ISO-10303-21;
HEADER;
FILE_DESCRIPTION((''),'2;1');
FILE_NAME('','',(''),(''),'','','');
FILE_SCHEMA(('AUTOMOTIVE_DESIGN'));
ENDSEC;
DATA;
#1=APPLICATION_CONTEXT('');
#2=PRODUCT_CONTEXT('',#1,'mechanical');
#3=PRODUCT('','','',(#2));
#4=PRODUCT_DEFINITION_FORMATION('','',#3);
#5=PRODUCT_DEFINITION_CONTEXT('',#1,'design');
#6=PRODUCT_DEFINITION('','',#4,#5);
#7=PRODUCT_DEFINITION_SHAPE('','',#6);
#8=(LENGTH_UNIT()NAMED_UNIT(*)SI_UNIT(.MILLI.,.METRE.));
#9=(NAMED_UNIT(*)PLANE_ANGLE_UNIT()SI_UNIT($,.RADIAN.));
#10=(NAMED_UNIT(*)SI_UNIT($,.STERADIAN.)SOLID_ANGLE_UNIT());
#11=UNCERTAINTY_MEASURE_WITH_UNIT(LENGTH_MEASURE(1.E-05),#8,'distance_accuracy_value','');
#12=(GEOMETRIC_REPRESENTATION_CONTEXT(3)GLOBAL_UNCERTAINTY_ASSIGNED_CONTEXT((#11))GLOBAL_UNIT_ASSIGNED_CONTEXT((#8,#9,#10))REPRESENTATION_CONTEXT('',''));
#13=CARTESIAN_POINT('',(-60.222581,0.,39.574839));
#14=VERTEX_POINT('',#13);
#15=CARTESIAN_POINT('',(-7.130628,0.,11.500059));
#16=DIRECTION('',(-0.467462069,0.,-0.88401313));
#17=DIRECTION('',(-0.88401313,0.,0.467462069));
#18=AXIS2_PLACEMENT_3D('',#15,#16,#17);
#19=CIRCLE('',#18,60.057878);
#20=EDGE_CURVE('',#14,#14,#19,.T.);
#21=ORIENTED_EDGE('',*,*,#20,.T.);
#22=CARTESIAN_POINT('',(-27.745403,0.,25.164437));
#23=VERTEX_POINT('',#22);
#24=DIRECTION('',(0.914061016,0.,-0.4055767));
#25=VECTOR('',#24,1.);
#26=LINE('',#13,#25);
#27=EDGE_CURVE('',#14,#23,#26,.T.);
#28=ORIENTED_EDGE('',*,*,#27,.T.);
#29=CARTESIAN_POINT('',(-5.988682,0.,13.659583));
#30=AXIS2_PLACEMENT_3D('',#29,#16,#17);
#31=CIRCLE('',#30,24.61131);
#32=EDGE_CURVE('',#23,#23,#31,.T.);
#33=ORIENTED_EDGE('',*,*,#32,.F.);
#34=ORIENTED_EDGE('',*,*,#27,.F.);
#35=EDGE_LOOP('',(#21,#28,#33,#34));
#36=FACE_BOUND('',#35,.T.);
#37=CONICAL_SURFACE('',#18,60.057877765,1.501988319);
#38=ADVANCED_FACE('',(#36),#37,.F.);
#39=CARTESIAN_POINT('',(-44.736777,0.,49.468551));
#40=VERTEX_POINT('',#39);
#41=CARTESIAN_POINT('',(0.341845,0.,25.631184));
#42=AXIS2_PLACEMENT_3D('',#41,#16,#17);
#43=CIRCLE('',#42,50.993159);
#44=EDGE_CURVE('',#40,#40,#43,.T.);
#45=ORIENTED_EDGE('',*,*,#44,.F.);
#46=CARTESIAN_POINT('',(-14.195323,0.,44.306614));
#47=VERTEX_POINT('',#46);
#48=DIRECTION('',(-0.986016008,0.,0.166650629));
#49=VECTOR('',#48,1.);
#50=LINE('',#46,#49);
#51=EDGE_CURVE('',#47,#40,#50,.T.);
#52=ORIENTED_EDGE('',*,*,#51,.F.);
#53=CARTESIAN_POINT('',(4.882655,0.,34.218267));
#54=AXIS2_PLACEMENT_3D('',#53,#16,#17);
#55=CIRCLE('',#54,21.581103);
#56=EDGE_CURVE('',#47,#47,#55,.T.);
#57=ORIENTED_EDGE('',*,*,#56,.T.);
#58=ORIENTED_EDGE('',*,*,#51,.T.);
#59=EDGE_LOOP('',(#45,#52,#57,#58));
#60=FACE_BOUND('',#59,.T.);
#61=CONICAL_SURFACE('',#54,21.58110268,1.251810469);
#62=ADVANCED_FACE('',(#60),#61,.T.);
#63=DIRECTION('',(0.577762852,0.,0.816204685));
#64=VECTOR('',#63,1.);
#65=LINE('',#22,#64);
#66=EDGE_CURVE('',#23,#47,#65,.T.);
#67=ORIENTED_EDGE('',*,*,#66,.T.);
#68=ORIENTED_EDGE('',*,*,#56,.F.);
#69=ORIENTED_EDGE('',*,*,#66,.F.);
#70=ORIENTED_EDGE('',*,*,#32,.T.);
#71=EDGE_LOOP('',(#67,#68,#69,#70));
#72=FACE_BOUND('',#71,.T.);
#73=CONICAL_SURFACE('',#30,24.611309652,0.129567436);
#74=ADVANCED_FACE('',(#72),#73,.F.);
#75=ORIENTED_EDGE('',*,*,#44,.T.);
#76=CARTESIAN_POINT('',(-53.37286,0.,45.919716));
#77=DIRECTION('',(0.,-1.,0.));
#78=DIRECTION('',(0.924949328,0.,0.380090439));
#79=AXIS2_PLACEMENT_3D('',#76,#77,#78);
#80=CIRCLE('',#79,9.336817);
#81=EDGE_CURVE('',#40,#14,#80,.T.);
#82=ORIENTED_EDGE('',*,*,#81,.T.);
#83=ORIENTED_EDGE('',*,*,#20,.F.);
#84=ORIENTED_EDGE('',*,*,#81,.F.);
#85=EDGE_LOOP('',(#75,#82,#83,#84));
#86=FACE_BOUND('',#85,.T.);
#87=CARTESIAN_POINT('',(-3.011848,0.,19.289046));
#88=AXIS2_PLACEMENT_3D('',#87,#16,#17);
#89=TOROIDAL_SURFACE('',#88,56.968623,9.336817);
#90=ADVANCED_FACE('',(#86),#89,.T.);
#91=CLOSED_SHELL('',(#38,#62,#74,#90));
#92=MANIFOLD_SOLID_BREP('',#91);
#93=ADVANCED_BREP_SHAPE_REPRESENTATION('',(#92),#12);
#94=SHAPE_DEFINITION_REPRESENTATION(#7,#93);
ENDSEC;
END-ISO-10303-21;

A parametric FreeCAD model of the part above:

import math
import FreeCAD as App
import Part
import Sketcher

doc = App.newDocument("Part")
body = doc.addObject("PartDesign::Body", "Body")

# Sketch on XZ plane
sketch1 = doc.addObject("Sketcher::SketchObject", "Sketch")
body.addObject(sketch1)
sketch1.AttachmentSupport = (doc.XZ_Plane, [""])
sketch1.MapMode = "FlatFace"
sketch1.addGeometry(Part.ArcOfCircle(Part.Circle(App.Vector(-53, 46, 0), App.Vector(0, 0, 1), 9), math.radians(22), math.radians(223)), False)
sketch1.addGeometry(Part.LineSegment(App.Vector(-60, 40, 0), App.Vector(-28, 25, 0)), False)
sketch1.addGeometry(Part.LineSegment(App.Vector(-28, 25, 0), App.Vector(-14, 44, 0)), False)
sketch1.addGeometry(Part.LineSegment(App.Vector(-14, 44, 0), App.Vector(-45, 49, 0)), False)
sketch1.addGeometry(Part.LineSegment(App.Vector(5, 34, 0), App.Vector(-7, 12, 0)), True)  # axis
sketch1.addConstraint(Sketcher.Constraint("Coincident", 0, 2, 1, 1))
sketch1.addConstraint(Sketcher.Constraint("Coincident", 1, 2, 2, 1))
sketch1.addConstraint(Sketcher.Constraint("Coincident", 2, 2, 3, 1))
sketch1.addConstraint(Sketcher.Constraint("Coincident", 3, 2, 0, 1))
sketch1.addConstraint(Sketcher.Constraint("Radius", 0, 9.336817))
sketch1.addConstraint(Sketcher.Constraint("DistanceY", 1, 2, 0, 2, 14.410402))
sketch1.addConstraint(Sketcher.Constraint("Distance", 4, 25.698948))
sketch1.addConstraint(Sketcher.Constraint("DistanceX", 0, 3, -1, 1, 53.37286))
sketch1.addConstraint(Sketcher.Constraint("DistanceX", 0, 2, -1, 1, 60.222581))
sketch1.addConstraint(Sketcher.Constraint("DistanceY", -1, 1, 0, 2, 39.574839))
sketch1.addConstraint(Sketcher.Constraint("DistanceY", -1, 1, 3, 2, 49.468551))
sketch1.addConstraint(Sketcher.Constraint("DistanceX", 4, 2, -1, 1, 7.130628))
sketch1.addConstraint(Sketcher.Constraint("DistanceY", -1, 1, 4, 2, 11.500059))
sketch1.addConstraint(Sketcher.Constraint("DistanceX", 0, 2, 1, 2, 32.477178))
sketch1.addConstraint(Sketcher.Constraint("DistanceX", 1, 2, 2, 2, 13.55008))
sketch1.addConstraint(Sketcher.Constraint("DistanceX", 2, 2, 4, 1, 19.077978))
sketch1.addConstraint(Sketcher.Constraint("Distance", 2, 23.452667))
revolution = doc.addObject("PartDesign::Revolution", "Revolution")
body.addObject(revolution)
revolution.Profile = sketch1
revolution.ReferenceAxis = (sketch1, ["Axis0"])
revolution.Angle = 360

doc.recompute()
